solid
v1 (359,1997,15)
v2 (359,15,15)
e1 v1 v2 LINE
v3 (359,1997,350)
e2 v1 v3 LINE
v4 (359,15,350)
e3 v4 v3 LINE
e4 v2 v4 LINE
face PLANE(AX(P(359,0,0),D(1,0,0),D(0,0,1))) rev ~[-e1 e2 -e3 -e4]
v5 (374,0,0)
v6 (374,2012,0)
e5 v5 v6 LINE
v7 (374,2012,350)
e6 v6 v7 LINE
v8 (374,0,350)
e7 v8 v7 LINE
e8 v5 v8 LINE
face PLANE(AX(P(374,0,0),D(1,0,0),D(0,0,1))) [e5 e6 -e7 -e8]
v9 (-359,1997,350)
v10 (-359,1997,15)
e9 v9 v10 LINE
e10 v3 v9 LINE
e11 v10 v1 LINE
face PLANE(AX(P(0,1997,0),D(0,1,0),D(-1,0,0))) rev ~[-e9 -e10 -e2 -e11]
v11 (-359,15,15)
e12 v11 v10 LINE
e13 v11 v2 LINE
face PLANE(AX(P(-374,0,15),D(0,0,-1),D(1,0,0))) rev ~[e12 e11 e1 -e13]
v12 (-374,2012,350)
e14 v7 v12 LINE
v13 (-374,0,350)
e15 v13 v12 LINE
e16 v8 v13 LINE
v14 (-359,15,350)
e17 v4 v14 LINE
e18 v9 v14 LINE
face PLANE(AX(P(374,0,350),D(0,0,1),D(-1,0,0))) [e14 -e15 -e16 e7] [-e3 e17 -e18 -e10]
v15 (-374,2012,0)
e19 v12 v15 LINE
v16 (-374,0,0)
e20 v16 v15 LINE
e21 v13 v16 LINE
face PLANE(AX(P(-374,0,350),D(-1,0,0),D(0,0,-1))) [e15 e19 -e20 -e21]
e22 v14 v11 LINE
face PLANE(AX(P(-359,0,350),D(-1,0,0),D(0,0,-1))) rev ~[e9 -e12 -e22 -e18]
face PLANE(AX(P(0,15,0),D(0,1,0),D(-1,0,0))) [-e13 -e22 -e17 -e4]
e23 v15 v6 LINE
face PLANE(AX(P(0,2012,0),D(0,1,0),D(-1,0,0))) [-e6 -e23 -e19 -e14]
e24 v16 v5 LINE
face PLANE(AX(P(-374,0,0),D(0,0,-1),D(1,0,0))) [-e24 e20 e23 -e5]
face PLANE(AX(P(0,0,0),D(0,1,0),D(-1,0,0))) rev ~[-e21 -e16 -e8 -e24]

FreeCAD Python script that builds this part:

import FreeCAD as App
import Part
import Sketcher
Q = App.Units.Quantity


def faces_at(feature, points):
    """Names of the faces that lie closest to the given points."""
    faces = feature.Shape.Faces
    near = lambda p: min(range(len(faces)), key=lambda i: faces[i].distToShape(Part.Vertex(*p))[0])
    return sorted({f"Face{near(p) + 1}" for p in points})

doc = App.newDocument("Part")
body = doc.addObject("PartDesign::Body", "Body")

# Sketch on XZ plane
sketch1 = body.newObject("Sketcher::SketchObject", "Sketch")
sketch1.AttachmentSupport = (doc.getObject("XZ_Plane"), [""])
sketch1.MapMode = "FlatFace"
sketch1.addGeometry(Part.LineSegment(App.Vector(374, 0, 0), App.Vector(-374, 0, 0)), False)
sketch1.addGeometry(Part.LineSegment(App.Vector(-374, 0, 0), App.Vector(-374, 350, 0)), False)
sketch1.addGeometry(Part.LineSegment(App.Vector(-374, 350, 0), App.Vector(374, 350, 0)), False)
sketch1.addGeometry(Part.LineSegment(App.Vector(374, 350, 0), App.Vector(374, 0, 0)), False)
sketch1.addConstraint(Sketcher.Constraint("Coincident", 0, 2, 1, 1))
sketch1.addConstraint(Sketcher.Constraint("Coincident", 1, 2, 2, 1))
sketch1.addConstraint(Sketcher.Constraint("Coincident", 2, 2, 3, 1))
sketch1.addConstraint(Sketcher.Constraint("Coincident", 3, 2, 0, 1))
sketch1.addConstraint(Sketcher.Constraint("Horizontal", 0))
sketch1.addConstraint(Sketcher.Constraint("Vertical", 1))
sketch1.addConstraint(Sketcher.Constraint("Horizontal", 2))
sketch1.addConstraint(Sketcher.Constraint("Vertical", 3))
sketch1.addConstraint(Sketcher.Constraint("Symmetric", 0, 2, 3, 2, -1, 1))
sketch1.addConstraint(Sketcher.Constraint("DistanceX", 0, 2, 0, 1, Q("748 mm")))
sketch1.addConstraint(Sketcher.Constraint("DistanceY", 1, 1, 1, 2, Q("350 mm")))
pad1 = body.newObject("PartDesign::Pad", "Pad")
pad1.Profile = sketch1
pad1.Length = 2012
pad1.Reversed = True
doc.recompute()

thickness = body.newObject("PartDesign::Thickness", "Thickness")
thickness.Base = (pad1, faces_at(pad1, [(-124.667, 670.667, 350)]))
thickness.Value = 15
thickness.Reversed = True
thickness.Join = "Intersection"

doc.recompute()
